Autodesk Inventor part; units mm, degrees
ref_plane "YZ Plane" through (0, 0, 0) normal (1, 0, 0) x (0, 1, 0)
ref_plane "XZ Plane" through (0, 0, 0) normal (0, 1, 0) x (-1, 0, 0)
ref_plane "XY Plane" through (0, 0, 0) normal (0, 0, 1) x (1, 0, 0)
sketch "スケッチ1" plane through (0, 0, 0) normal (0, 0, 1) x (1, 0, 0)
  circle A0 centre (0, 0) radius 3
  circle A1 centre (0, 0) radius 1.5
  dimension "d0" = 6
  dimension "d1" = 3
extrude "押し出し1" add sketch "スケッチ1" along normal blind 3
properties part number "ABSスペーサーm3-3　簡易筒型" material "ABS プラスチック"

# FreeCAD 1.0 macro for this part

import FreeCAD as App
import Part
import Sketcher
from FreeCAD import Vector

doc = App.newDocument("Part")
params = doc.addObject("Spreadsheet::Sheet", "Params")
for row, (alias, value) in enumerate([
    ("sketch1_diameter", "6 mm"),
    ("sketch1_diameter2", "3 mm"),
    ("pad1_length", "3 mm"),
], start=1):
    params.set(f"A{row}", alias)
    params.set(f"B{row}", "=" + value)
    params.setAlias(f"B{row}", alias)

body = doc.addObject("PartDesign::Body", "Body")

sketch1 = body.newObject("Sketcher::SketchObject", "Sketch")
sketch1.AttachmentSupport = (doc.getObject("XY_Plane"), [""])
sketch1.MapMode = "FlatFace"
sketch1.addGeometry(Part.Circle(Vector(0, 0, 0), Vector(0, 0, 1), 3), False)
sketch1.addGeometry(Part.Circle(Vector(0, 0, 0), Vector(0, 0, 1), 1.5), False)
sketch1.addConstraint(Sketcher.Constraint("Coincident", 0, 3, -1, 1))
sketch1.addConstraint(Sketcher.Constraint("Coincident", 1, 3, -1, 1))
sketch1.addConstraint(Sketcher.Constraint("Diameter", 0, 6.0))
sketch1.addConstraint(Sketcher.Constraint("Diameter", 1, 3.0))
sketch1.setExpression("Constraints[2]", "Params.sketch1_diameter")
sketch1.setExpression("Constraints[3]", "Params.sketch1_diameter2")
pad1 = body.newObject("PartDesign::Pad", "Pad")
pad1.Profile = sketch1
pad1.setExpression("Length", "Params.pad1_length")

doc.recompute()
